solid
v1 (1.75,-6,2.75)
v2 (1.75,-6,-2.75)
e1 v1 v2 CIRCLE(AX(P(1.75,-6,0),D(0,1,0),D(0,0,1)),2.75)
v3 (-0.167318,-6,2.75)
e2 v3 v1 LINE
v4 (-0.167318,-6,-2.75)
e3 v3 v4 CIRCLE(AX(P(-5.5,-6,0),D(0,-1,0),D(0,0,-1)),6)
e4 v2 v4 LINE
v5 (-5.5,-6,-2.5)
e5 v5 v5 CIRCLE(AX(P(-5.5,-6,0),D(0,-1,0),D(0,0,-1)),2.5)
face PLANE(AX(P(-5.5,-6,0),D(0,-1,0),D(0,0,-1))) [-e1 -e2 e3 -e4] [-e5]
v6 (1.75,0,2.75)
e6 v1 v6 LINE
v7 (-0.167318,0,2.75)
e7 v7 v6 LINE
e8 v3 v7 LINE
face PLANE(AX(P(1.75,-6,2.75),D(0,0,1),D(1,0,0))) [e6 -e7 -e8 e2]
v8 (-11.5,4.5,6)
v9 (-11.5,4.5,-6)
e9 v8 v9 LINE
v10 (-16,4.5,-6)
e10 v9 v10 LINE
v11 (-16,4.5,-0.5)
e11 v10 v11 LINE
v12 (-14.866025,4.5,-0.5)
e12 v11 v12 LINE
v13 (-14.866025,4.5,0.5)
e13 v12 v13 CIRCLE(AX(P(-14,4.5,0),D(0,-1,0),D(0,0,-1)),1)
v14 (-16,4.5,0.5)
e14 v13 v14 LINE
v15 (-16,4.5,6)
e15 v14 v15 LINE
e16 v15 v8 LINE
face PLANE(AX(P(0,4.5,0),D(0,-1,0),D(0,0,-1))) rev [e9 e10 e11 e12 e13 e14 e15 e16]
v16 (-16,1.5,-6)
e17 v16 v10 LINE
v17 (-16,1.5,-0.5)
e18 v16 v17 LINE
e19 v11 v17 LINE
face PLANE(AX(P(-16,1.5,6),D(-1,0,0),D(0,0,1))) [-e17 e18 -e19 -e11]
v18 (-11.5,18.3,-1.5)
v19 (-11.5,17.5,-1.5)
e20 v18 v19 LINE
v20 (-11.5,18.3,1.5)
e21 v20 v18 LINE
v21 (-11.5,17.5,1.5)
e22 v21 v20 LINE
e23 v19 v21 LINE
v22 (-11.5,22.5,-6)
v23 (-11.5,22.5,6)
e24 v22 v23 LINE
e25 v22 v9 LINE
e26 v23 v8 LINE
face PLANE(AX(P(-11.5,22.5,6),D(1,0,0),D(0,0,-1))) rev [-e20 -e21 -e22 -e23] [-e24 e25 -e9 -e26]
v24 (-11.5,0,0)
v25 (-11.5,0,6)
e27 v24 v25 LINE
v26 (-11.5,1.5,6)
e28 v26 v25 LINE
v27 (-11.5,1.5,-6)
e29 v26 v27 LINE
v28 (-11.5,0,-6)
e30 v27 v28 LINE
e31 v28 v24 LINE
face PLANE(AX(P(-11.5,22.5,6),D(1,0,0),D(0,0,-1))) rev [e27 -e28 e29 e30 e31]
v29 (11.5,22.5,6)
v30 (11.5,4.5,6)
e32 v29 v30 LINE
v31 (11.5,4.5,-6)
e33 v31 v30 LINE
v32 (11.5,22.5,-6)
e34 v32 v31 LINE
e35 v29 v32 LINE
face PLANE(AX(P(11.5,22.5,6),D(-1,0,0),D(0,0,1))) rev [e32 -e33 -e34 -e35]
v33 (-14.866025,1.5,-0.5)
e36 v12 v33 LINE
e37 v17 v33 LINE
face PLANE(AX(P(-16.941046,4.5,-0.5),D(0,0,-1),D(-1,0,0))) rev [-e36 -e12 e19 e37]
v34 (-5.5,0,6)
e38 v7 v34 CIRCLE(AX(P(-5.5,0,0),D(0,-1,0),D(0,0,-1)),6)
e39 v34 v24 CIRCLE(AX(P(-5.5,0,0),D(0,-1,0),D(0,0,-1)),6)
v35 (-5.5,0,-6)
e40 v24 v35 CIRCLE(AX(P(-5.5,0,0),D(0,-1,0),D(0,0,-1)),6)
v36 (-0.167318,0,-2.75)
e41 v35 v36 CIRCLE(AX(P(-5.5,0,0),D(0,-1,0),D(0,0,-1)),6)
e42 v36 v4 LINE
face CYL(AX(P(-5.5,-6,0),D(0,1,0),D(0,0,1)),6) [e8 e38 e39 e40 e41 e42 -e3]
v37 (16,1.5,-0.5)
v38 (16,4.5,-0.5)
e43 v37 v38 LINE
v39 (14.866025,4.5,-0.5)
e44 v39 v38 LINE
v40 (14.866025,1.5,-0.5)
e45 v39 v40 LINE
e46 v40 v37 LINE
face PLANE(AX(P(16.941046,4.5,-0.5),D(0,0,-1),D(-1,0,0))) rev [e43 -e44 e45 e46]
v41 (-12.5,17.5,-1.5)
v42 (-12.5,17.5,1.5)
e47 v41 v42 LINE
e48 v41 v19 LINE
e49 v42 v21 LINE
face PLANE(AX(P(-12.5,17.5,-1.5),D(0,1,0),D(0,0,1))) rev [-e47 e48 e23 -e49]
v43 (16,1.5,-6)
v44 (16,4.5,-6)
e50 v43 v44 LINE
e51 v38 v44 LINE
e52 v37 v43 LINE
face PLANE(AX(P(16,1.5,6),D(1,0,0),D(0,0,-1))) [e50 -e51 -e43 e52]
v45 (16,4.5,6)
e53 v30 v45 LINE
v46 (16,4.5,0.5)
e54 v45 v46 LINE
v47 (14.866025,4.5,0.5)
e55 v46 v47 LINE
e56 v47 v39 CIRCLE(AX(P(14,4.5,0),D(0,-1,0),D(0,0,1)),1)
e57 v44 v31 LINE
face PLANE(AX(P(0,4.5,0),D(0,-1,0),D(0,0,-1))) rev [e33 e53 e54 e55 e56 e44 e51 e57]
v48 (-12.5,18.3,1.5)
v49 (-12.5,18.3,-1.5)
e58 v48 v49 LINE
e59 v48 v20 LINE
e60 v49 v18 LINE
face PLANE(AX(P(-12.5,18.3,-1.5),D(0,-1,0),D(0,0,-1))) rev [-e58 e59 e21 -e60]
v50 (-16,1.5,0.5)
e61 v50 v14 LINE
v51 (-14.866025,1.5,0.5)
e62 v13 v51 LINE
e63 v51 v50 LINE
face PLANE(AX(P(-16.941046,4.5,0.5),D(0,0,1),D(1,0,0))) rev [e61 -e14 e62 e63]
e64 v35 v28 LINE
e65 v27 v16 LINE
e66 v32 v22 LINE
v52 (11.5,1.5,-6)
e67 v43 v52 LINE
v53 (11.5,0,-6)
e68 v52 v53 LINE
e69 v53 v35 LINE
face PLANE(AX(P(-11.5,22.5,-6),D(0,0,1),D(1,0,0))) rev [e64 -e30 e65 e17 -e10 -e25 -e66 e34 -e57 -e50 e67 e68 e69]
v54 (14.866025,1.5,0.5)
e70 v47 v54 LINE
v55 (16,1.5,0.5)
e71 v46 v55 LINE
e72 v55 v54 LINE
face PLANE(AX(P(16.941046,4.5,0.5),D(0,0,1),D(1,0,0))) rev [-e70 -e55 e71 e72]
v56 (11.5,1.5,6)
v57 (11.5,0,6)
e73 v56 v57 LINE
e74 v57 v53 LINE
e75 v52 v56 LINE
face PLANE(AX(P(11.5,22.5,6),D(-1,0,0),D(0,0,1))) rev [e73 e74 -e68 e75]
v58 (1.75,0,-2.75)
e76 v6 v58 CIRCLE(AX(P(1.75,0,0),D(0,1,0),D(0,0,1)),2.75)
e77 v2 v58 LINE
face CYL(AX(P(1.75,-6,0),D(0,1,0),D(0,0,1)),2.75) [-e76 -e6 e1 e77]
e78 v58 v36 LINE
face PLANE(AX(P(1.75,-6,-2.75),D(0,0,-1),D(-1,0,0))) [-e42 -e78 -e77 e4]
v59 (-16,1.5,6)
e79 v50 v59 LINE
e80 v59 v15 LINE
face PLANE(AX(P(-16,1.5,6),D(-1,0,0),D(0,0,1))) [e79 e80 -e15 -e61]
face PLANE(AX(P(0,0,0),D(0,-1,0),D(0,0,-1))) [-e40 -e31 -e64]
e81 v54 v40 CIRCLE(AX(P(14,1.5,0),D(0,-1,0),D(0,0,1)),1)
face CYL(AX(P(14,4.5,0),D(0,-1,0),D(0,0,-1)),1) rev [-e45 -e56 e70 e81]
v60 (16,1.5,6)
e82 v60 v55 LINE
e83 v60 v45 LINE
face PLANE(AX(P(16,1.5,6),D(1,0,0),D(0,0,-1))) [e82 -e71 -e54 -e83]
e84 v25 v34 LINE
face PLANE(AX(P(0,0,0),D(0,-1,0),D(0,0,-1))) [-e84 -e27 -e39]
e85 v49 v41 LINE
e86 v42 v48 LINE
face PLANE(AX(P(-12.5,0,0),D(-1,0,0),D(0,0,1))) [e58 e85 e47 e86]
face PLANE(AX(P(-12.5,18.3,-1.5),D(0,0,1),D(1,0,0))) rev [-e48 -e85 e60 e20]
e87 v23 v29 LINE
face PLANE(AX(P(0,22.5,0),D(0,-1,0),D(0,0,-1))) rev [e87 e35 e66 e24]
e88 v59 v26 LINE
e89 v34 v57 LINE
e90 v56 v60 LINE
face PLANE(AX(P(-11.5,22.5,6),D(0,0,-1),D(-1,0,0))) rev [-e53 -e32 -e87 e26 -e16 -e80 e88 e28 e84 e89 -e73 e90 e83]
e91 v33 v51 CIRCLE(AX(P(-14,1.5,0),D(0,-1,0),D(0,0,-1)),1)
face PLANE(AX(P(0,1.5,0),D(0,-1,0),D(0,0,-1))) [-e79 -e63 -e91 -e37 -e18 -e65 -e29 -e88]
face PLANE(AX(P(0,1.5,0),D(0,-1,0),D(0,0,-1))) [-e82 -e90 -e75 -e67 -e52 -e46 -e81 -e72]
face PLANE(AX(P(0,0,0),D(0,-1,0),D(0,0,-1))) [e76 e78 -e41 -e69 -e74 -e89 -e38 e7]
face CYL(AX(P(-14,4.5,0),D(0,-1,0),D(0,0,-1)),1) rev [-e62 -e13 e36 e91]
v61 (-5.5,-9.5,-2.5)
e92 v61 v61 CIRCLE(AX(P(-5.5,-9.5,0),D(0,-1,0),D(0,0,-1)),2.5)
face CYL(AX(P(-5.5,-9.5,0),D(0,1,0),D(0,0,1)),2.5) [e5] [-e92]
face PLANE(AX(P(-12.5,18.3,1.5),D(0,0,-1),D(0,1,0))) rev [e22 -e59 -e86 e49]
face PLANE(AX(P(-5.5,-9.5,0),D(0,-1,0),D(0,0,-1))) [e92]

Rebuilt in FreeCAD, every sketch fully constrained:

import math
import FreeCAD as App
import Part
import Sketcher
from FreeCAD import Vector


def add_polygon(sketch, points):
    """Adds a closed chain of lines whose ends are joined by coincident constraints."""
    first, n = sketch.GeometryCount, len(points)
    for a, b in zip(points, points[1:] + points[:1]):
        sketch.addGeometry(Part.LineSegment(App.Vector(*a, 0), App.Vector(*b, 0)), False)
    for i in range(n):
        sketch.addConstraint(Sketcher.Constraint("Coincident", first + i, 2, first + (i + 1) % n, 1))

doc = App.newDocument("Part")
body = doc.addObject("PartDesign::Body", "Body")

# Sketch on XZ plane
sketch1 = doc.addObject("Sketcher::SketchObject", "Sketch")
body.addObject(sketch1)
sketch1.AttachmentSupport = (doc.XZ_Plane, [""])
sketch1.MapMode = "FlatFace"
add_polygon(sketch1, [(-11.5, -6), (-11.5, 6), (11.5, 6), (11.5, -6)])  # lines 0-3
sketch1.addConstraint(Sketcher.Constraint("Vertical", 0))
sketch1.addConstraint(Sketcher.Constraint("Horizontal", 1))
sketch1.addConstraint(Sketcher.Constraint("Vertical", 2))
sketch1.addConstraint(Sketcher.Constraint("Horizontal", 3))
sketch1.addConstraint(Sketcher.Constraint("Symmetric", 0, 2, 2, 2, -1, 1))
sketch1.addConstraint(Sketcher.Constraint("DistanceX", 1, 1, 1, 2, 23.0))
sketch1.addConstraint(Sketcher.Constraint("DistanceY", 0, 1, 0, 2, 12.0))
pad1 = doc.addObject("PartDesign::Pad", "Pad")
body.addObject(pad1)
pad1.Profile = sketch1
pad1.Length = 22.5
pad1.Reversed = True

# Sketch on XZ plane
sketch2 = doc.addObject("Sketcher::SketchObject", "Sketch001")
body.addObject(sketch2)
sketch2.AttachmentSupport = (doc.XZ_Plane, [""])
sketch2.MapMode = "FlatFace"
sketch2.AttachmentOffset = App.Placement(Vector(0, 0, -4.5), App.Rotation())
add_polygon(sketch2, [(-16, -6), (-16, 6), (16, 6), (16, -6)])  # lines 0-3
sketch2.addConstraint(Sketcher.Constraint("Vertical", 0))
sketch2.addConstraint(Sketcher.Constraint("Horizontal", 1))
sketch2.addConstraint(Sketcher.Constraint("Vertical", 2))
sketch2.addConstraint(Sketcher.Constraint("Horizontal", 3))
sketch2.addConstraint(Sketcher.Constraint("Symmetric", 0, 2, 2, 2, -1, 1))
sketch2.addConstraint(Sketcher.Constraint("DistanceX", 1, 1, 1, 2, 32.0))
sketch2.addConstraint(Sketcher.Constraint("DistanceY", 0, 1, 0, 2, 12.0))
pad2 = doc.addObject("PartDesign::Pad", "Pad001")
body.addObject(pad2)
pad2.Profile = sketch2
pad2.Length = 3

# Sketch on XZ plane
sketch3 = doc.addObject("Sketcher::SketchObject", "Sketch002")
body.addObject(sketch3)
sketch3.AttachmentSupport = (doc.XZ_Plane, [""])
sketch3.MapMode = "FlatFace"
sketch3.AttachmentOffset = App.Placement(Vector(0, 0, -1.5), App.Rotation())
sketch3.addGeometry(Part.LineSegment(Vector(-14.866025, 0.5, 0), Vector(-16.941046, 0.5, 0)), False)
sketch3.addGeometry(Part.LineSegment(Vector(-16.941046, 0.5, 0), Vector(-16.941046, -0.5, 0)), False)
sketch3.addGeometry(Part.LineSegment(Vector(-16.941046, -0.5, 0), Vector(-14.866025, -0.5, 0)), False)
sketch3.addGeometry(Part.ArcOfCircle(Part.Circle(Vector(-14, 0, 0), Vector(0, 0, 1), 1), math.radians(-150), math.radians(150)), False)
sketch3.addGeometry(Part.LineSegment(Vector(16.941046, -0.5, 0), Vector(16.941046, 0.5, 0)), False)
sketch3.addGeometry(Part.LineSegment(Vector(16.941046, 0.5, 0), Vector(14.866025, 0.5, 0)), False)
sketch3.addGeometry(Part.ArcOfCircle(Part.Circle(Vector(14, 0, 0), Vector(0, 0, 1), 1), math.radians(30), math.radians(330)), False)
sketch3.addGeometry(Part.LineSegment(Vector(14.866025, -0.5, 0), Vector(16.941046, -0.5, 0)), False)
sketch3.addConstraint(Sketcher.Constraint("Coincident", 0, 2, 1, 1))
sketch3.addConstraint(Sketcher.Constraint("Coincident", 1, 2, 2, 1))
sketch3.addConstraint(Sketcher.Constraint("Coincident", 2, 2, 3, 1))
sketch3.addConstraint(Sketcher.Constraint("Coincident", 3, 2, 0, 1))
sketch3.addConstraint(Sketcher.Constraint("Coincident", 4, 2, 5, 1))
sketch3.addConstraint(Sketcher.Constraint("Coincident", 5, 2, 6, 1))
sketch3.addConstraint(Sketcher.Constraint("Coincident", 6, 2, 7, 1))
sketch3.addConstraint(Sketcher.Constraint("Coincident", 7, 2, 4, 1))
sketch3.addConstraint(Sketcher.Constraint("Horizontal", 0))
sketch3.addConstraint(Sketcher.Constraint("Vertical", 1))
sketch3.addConstraint(Sketcher.Constraint("Horizontal", 2))
sketch3.addConstraint(Sketcher.Constraint("Vertical", 4))
sketch3.addConstraint(Sketcher.Constraint("Horizontal", 5))
sketch3.addConstraint(Sketcher.Constraint("Horizontal", 7))
sketch3.addConstraint(Sketcher.Constraint("Equal", 3, 6))
sketch3.addConstraint(Sketcher.Constraint("Symmetric", 3, 3, 6, 3, -1, 1))
sketch3.addConstraint(Sketcher.Constraint("Symmetric", 1, 2, 4, 2, -1, 1))
sketch3.addConstraint(Sketcher.Constraint("Symmetric", 3, 2, 5, 2, -2))
sketch3.addConstraint(Sketcher.Constraint("Horizontal", 2, 2, 6, 2))
sketch3.addConstraint(Sketcher.Constraint("Radius", 3, 1.0))
sketch3.addConstraint(Sketcher.Constraint("DistanceY", 1, 2, 1, 1, 1.0))
sketch3.addConstraint(Sketcher.Constraint("DistanceX", 3, 3, -1, 1, 14.0))
sketch3.addConstraint(Sketcher.Constraint("DistanceX", 0, 2, 0, 1, 2.07502))
pocket1 = doc.addObject("PartDesign::Pocket", "Pocket")
body.addObject(pocket1)
pocket1.Profile = sketch3
pocket1.Length = 3

# Sketch on XZ plane
sketch4 = doc.addObject("Sketcher::SketchObject", "Sketch003")
body.addObject(sketch4)
sketch4.AttachmentSupport = (doc.XZ_Plane, [""])
sketch4.MapMode = "FlatFace"
sketch4.addGeometry(Part.Circle(Vector(-5.5, 0, 0), Vector(0, 0, 1), 6), False)
sketch4.addConstraint(Sketcher.Constraint("PointOnObject", 0, 3, -1))
sketch4.addConstraint(Sketcher.Constraint("Diameter", 0, 12.0))
sketch4.addConstraint(Sketcher.Constraint("DistanceX", 0, 3, -1, 1, 5.5))
pad3 = doc.addObject("PartDesign::Pad", "Pad002")
body.addObject(pad3)
pad3.Profile = sketch4
pad3.Length = 6

# Sketch on XZ plane
sketch5 = doc.addObject("Sketcher::SketchObject", "Sketch004")
body.addObject(sketch5)
sketch5.AttachmentSupport = (doc.XZ_Plane, [""])
sketch5.MapMode = "FlatFace"
sketch5.AttachmentOffset = App.Placement(Vector(0, 0, 6), App.Rotation())
sketch5.addGeometry(Part.Circle(Vector(-5.5, 0, 0), Vector(0, 0, 1), 2.5), False)
sketch5.addConstraint(Sketcher.Constraint("PointOnObject", 0, 3, -1))
sketch5.addConstraint(Sketcher.Constraint("Diameter", 0, 5.0))
sketch5.addConstraint(Sketcher.Constraint("DistanceX", 0, 3, -1, 1, 5.5))
pad4 = doc.addObject("PartDesign::Pad", "Pad003")
body.addObject(pad4)
pad4.Profile = sketch5
pad4.Length = 3.5

# Sketch on XZ plane
sketch6 = doc.addObject("Sketcher::SketchObject", "Sketch005")
body.addObject(sketch6)
sketch6.AttachmentSupport = (doc.XZ_Plane, [""])
sketch6.MapMode = "FlatFace"
sketch6.addGeometry(Part.LineSegment(Vector(-1.670477, 2.75, 0), Vector(1.75, 2.75, 0)), False)
sketch6.addGeometry(Part.ArcOfCircle(Part.Circle(Vector(1.75, 0, 0), Vector(0, 0, 1), 2.75), math.radians(-90), math.radians(90)), False)
sketch6.addGeometry(Part.LineSegment(Vector(1.75, -2.75, 0), Vector(-1.670477, -2.75, 0)), False)
sketch6.addGeometry(Part.LineSegment(Vector(-1.670477, -2.75, 0), Vector(-1.670477, 2.75, 0)), False)
sketch6.addConstraint(Sketcher.Constraint("Tangent", 0, 2, 1, 2))
sketch6.addConstraint(Sketcher.Constraint("Tangent", 1, 1, 2, 1))
sketch6.addConstraint(Sketcher.Constraint("Coincident", 2, 2, 3, 1))
sketch6.addConstraint(Sketcher.Constraint("Coincident", 3, 2, 0, 1))
sketch6.addConstraint(Sketcher.Constraint("Horizontal", 0))
sketch6.addConstraint(Sketcher.Constraint("Horizontal", 2))
sketch6.addConstraint(Sketcher.Constraint("Vertical", 3))
sketch6.addConstraint(Sketcher.Constraint("PointOnObject", 1, 3, -1))
sketch6.addConstraint(Sketcher.Constraint("Radius", 1, 2.75))
sketch6.addConstraint(Sketcher.Constraint("DistanceX", -1, 1, 1, 3, 1.75))
sketch6.addConstraint(Sketcher.Constraint("DistanceX", 0, 1, 0, 2, 3.420477))
pad5 = doc.addObject("PartDesign::Pad", "Pad004")
body.addObject(pad5)
pad5.Profile = sketch6
pad5.Length = 6

# Sketch on YZ plane
sketch7 = doc.addObject("Sketcher::SketchObject", "Sketch006")
body.addObject(sketch7)
sketch7.AttachmentSupport = (doc.YZ_Plane, [""])
sketch7.MapMode = "FlatFace"
sketch7.AttachmentOffset = App.Placement(Vector(0, 0, -11.5), App.Rotation())
add_polygon(sketch7, [(18.3, -1.5), (17.5, -1.5), (17.5, 1.5), (18.3, 1.5)])  # lines 0-3
sketch7.addConstraint(Sketcher.Constraint("Horizontal", 0))
sketch7.addConstraint(Sketcher.Constraint("Vertical", 1))
sketch7.addConstraint(Sketcher.Constraint("Horizontal", 2))
sketch7.addConstraint(Sketcher.Constraint("Vertical", 3))
sketch7.addConstraint(Sketcher.Constraint("DistanceY", 1, 1, 1, 2, 3.0))
sketch7.addConstraint(Sketcher.Constraint("DistanceX", 0, 2, 0, 1, 0.8))
sketch7.addConstraint(Sketcher.Constraint("DistanceX", -1, 1, 0, 2, 17.5))
sketch7.addConstraint(Sketcher.Constraint("DistanceY", 0, 2, -1, 1, 1.5))
pad6 = doc.addObject("PartDesign::Pad", "Pad005")
body.addObject(pad6)
pad6.Profile = sketch7
pad6.Length = 1
pad6.Reversed = True

doc.recompute()
